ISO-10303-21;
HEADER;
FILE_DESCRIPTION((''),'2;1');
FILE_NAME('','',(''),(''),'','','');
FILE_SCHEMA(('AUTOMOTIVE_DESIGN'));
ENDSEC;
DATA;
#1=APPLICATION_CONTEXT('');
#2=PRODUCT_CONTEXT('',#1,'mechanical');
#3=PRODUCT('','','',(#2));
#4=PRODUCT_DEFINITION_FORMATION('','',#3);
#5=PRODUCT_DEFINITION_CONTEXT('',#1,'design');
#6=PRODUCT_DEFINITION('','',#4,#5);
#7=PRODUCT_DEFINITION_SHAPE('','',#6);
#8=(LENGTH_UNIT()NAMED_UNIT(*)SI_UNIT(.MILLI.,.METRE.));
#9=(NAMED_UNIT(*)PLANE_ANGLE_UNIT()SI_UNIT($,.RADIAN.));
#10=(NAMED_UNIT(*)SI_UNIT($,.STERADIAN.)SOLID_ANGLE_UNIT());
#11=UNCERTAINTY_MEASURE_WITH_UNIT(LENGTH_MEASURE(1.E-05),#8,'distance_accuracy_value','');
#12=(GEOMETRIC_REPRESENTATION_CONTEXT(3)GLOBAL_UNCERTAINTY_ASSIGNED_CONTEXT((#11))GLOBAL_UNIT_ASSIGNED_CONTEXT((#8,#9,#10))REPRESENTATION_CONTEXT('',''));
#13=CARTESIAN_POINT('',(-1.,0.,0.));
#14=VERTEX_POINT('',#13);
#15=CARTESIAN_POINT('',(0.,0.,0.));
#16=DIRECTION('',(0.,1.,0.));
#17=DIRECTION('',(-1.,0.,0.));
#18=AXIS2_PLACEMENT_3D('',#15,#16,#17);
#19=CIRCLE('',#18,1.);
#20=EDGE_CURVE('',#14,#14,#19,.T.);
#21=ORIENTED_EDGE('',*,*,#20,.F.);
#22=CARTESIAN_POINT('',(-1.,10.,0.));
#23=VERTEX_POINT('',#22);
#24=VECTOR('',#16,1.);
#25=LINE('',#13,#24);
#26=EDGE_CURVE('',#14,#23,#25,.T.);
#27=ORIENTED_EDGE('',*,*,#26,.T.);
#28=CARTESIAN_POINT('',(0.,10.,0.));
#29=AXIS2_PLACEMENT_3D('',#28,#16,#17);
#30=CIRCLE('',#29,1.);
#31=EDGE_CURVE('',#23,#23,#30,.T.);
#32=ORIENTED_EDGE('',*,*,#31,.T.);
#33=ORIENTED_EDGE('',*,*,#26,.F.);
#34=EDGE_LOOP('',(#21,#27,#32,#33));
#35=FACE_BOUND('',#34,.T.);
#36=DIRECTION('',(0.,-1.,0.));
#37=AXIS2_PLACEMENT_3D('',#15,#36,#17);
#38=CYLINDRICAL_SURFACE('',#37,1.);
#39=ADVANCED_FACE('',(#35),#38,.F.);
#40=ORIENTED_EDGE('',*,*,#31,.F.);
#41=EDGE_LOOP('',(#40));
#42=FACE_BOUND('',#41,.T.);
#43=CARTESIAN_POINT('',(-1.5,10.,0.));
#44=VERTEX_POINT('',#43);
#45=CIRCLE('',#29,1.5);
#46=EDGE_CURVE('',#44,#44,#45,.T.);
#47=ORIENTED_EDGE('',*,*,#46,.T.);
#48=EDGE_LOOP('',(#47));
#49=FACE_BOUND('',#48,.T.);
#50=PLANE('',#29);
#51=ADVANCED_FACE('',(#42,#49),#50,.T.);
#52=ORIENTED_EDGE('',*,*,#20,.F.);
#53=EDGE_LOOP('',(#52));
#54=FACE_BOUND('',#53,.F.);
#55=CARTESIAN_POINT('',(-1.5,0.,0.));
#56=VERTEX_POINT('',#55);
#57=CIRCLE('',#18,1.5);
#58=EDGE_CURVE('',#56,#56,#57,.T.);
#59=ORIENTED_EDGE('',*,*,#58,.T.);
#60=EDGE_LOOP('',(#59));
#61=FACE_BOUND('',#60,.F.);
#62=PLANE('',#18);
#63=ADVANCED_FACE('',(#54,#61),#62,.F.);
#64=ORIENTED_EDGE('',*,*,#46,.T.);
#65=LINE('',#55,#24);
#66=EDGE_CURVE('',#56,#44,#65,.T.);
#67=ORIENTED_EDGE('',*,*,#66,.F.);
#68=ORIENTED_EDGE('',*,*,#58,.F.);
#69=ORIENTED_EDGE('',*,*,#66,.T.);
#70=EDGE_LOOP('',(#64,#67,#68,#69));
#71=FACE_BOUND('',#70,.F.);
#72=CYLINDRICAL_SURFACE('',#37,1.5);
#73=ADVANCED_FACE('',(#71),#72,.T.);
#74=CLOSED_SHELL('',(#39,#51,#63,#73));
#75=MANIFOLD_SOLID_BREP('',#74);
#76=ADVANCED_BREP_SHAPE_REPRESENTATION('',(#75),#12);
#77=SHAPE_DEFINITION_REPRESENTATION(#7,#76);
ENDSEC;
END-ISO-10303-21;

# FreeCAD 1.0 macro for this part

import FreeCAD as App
import Part
import Sketcher
Q = App.Units.Quantity

doc = App.newDocument("Part")
body = doc.addObject("PartDesign::Body", "Body")

# Sketch on XZ plane
sketch1 = body.newObject("Sketcher::SketchObject", "Sketch")
sketch1.AttachmentSupport = (doc.getObject("XZ_Plane"), [""])
sketch1.MapMode = "FlatFace"
sketch1.addGeometry([
    Part.Circle(App.Vector(0, 0, 0), App.Vector(0, 0, 1), 1.5),
    Part.Circle(App.Vector(0, 0, 0), App.Vector(0, 0, 1), 1),
], False)
sketch1.addConstraint([
    Sketcher.Constraint("Coincident", 0, 3, -1, 1),
    Sketcher.Constraint("Coincident", 1, 3, -1, 1),
    Sketcher.Constraint("Diameter", 0, Q("3 mm")),
    Sketcher.Constraint("Diameter", 1, Q("2 mm")),
])
pad1 = body.newObject("PartDesign::Pad", "Pad")
pad1.Profile = sketch1
pad1.Length = 10
pad1.Reversed = True

doc.recompute()
